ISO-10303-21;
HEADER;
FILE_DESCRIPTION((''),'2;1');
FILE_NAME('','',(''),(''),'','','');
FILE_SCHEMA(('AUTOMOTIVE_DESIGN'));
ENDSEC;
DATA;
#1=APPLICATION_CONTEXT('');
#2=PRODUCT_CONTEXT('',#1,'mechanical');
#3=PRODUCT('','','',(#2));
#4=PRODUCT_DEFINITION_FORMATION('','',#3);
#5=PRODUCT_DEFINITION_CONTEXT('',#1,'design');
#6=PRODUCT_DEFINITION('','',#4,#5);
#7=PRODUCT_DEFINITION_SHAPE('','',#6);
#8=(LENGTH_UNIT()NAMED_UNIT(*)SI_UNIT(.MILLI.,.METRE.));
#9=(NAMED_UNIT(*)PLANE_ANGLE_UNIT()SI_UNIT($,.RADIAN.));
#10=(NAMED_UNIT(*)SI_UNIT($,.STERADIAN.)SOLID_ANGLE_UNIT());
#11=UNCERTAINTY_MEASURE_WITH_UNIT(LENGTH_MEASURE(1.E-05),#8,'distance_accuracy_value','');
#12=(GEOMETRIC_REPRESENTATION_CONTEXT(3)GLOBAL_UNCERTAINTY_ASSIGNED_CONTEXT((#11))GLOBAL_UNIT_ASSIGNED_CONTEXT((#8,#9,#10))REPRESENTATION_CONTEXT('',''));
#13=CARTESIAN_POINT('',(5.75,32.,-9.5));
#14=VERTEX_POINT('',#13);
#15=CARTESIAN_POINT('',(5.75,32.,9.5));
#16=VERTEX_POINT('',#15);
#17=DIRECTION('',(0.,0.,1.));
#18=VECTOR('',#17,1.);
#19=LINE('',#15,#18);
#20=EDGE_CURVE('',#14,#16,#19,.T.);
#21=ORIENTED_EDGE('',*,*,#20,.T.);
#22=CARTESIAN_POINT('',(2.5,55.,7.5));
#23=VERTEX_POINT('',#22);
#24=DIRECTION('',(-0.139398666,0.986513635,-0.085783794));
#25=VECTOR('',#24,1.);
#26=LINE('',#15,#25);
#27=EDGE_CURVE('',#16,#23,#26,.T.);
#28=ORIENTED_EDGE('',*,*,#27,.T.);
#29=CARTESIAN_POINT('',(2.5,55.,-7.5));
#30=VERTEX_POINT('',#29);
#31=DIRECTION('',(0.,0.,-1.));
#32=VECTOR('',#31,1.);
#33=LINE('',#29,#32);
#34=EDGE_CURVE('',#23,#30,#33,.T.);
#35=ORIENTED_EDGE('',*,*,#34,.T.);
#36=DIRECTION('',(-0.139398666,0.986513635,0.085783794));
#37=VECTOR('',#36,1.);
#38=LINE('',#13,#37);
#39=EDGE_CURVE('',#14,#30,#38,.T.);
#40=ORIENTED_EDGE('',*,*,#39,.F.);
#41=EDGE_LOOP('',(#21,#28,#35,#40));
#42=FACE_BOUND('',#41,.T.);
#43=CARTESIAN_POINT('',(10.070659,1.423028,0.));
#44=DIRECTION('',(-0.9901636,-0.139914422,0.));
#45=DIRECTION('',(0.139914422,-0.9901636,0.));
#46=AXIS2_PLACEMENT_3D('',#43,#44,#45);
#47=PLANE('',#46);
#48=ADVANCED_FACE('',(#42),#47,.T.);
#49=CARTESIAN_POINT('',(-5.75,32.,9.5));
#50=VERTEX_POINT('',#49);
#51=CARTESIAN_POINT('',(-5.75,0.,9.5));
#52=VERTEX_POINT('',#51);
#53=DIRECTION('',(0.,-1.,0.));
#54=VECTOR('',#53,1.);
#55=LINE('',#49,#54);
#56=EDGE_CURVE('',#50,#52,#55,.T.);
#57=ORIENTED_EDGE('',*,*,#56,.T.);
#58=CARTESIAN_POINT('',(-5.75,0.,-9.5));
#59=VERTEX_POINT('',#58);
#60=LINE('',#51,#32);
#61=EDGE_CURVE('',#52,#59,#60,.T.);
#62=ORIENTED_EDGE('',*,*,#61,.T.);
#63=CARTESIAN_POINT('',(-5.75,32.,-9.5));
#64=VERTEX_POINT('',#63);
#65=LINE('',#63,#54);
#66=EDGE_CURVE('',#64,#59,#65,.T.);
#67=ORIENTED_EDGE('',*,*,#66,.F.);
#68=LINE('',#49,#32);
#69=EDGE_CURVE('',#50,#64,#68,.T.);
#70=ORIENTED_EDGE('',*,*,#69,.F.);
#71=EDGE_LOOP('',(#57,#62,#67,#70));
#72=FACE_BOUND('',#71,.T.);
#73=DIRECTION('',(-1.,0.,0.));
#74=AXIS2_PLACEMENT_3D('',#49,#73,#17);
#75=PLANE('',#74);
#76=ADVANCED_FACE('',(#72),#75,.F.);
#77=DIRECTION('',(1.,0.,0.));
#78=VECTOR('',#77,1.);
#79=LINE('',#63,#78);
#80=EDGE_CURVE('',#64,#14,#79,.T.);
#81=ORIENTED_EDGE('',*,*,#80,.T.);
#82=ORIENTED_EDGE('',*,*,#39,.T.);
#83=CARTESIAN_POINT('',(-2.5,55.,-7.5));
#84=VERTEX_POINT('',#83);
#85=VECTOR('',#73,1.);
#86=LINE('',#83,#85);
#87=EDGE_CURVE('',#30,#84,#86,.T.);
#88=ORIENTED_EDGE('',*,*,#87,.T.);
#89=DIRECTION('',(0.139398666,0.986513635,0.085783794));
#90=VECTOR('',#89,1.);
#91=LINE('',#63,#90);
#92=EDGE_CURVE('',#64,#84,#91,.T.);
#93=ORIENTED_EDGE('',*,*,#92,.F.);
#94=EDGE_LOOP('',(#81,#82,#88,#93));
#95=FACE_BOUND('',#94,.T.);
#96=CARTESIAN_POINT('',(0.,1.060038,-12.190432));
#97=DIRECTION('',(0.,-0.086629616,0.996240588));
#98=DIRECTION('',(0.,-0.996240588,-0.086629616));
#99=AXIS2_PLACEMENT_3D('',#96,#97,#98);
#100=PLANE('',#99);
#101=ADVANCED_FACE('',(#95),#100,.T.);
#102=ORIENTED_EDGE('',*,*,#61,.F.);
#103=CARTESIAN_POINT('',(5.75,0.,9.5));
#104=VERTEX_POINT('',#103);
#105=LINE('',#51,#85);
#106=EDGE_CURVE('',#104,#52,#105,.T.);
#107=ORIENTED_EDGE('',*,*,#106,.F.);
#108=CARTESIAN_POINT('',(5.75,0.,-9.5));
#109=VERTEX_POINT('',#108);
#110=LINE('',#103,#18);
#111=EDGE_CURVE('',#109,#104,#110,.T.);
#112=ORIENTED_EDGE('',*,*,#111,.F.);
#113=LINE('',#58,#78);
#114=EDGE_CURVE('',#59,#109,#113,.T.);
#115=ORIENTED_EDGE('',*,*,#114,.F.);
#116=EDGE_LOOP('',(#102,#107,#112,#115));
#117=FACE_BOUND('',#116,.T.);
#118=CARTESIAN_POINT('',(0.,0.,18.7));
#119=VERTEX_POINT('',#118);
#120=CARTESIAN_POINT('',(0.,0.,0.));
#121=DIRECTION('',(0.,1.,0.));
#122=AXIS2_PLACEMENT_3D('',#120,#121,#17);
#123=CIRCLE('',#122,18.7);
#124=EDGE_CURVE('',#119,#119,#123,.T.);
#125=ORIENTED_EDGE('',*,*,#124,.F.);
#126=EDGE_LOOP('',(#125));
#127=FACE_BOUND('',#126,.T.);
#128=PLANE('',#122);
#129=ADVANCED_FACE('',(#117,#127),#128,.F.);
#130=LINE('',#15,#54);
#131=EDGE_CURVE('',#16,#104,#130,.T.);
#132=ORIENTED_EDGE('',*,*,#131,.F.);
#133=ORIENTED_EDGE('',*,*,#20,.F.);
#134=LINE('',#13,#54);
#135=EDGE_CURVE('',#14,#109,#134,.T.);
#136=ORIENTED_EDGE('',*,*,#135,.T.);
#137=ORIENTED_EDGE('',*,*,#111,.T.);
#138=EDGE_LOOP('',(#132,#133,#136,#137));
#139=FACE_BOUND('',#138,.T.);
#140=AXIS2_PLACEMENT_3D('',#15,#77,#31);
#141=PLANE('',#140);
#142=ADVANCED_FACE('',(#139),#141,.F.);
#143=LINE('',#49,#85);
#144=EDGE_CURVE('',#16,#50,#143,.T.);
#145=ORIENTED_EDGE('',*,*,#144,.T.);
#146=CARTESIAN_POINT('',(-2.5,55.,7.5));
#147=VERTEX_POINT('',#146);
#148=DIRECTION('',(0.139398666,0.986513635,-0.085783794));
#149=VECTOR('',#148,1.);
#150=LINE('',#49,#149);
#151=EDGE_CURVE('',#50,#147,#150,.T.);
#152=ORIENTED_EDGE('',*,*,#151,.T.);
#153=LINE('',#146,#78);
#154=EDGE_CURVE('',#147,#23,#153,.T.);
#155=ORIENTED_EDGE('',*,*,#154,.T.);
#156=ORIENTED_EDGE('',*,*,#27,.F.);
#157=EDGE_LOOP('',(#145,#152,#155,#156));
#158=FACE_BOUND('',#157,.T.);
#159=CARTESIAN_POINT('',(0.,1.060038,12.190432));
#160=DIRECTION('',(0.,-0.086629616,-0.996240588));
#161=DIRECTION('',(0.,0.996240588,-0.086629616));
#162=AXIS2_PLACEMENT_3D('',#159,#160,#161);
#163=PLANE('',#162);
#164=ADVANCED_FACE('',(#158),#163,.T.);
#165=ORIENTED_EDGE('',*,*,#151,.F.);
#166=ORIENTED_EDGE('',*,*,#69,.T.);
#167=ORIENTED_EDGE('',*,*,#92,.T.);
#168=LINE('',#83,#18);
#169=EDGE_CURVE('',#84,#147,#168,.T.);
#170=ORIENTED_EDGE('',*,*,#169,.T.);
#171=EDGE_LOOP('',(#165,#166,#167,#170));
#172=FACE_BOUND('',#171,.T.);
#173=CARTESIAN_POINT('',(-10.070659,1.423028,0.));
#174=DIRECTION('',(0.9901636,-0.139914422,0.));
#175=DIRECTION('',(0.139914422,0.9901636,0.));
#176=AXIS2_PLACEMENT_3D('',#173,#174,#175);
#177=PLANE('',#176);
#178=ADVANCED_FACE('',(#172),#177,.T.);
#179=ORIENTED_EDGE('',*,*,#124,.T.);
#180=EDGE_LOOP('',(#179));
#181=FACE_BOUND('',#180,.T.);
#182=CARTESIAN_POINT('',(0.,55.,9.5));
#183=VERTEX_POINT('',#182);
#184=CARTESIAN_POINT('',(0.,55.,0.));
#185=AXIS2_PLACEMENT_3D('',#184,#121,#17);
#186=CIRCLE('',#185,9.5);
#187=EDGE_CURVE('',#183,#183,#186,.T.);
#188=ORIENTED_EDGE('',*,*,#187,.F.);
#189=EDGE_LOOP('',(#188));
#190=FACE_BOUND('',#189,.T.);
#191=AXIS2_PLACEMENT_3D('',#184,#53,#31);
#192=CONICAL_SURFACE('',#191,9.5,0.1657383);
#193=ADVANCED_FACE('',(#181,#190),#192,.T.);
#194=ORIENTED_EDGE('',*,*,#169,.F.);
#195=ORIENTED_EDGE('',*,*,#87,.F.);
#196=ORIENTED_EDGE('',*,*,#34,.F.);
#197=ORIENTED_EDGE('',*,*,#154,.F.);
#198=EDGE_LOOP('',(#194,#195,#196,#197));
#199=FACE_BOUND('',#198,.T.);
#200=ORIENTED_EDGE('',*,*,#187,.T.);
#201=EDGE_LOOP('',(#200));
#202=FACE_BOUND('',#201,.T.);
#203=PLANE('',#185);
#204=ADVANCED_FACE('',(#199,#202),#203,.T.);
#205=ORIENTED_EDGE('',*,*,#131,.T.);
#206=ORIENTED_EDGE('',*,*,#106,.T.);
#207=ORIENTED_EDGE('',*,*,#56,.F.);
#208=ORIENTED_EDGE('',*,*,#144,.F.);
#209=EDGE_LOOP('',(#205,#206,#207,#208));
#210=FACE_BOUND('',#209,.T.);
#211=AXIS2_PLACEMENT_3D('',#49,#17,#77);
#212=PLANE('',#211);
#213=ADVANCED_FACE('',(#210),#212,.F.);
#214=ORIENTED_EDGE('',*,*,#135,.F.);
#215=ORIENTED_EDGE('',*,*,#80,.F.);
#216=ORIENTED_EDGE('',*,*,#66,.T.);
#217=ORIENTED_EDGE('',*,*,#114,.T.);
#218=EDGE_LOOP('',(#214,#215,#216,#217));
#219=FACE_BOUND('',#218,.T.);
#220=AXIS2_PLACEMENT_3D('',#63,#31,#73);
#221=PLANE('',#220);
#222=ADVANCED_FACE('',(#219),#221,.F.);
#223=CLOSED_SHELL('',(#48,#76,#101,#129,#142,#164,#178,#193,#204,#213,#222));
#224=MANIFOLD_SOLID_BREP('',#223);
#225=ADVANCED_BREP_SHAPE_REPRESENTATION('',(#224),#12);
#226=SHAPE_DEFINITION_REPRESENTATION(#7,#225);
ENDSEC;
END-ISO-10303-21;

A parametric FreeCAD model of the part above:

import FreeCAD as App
import Part
import Sketcher
from FreeCAD import Vector

doc = App.newDocument("Part")
body = doc.addObject("PartDesign::Body", "Body")

# Sketch on XZ plane
sketch1 = doc.addObject("Sketcher::SketchObject", "Sketch")
body.addObject(sketch1)
sketch1.AttachmentSupport = (doc.XZ_Plane, [""])
sketch1.MapMode = "FlatFace"
sketch1.AttachmentOffset = App.Placement(Vector(0, 0, -55), App.Rotation())
sketch1.addGeometry(Part.Circle(Vector(0, 0, 0), Vector(0, 0, 1), 10), False)
sketch1.addConstraint(Sketcher.Constraint("Coincident", 0, 3, -1, 1))
sketch1.addConstraint(Sketcher.Constraint("Diameter", 0, 19.0))

# Sketch on XZ plane
sketch2 = doc.addObject("Sketcher::SketchObject", "Sketch001")
body.addObject(sketch2)
sketch2.AttachmentSupport = (doc.XZ_Plane, [""])
sketch2.MapMode = "FlatFace"
sketch2.addGeometry(Part.Circle(Vector(0, 0, 0), Vector(0, 0, 1), 19), False)
sketch2.addConstraint(Sketcher.Constraint("Coincident", 0, 3, -1, 1))
sketch2.addConstraint(Sketcher.Constraint("Diameter", 0, 37.4))

additiveloft = doc.addObject("PartDesign::AdditiveLoft", "AdditiveLoft")
body.addObject(additiveloft)
additiveloft.Profile = sketch1
additiveloft.Sections = [sketch2]

# Sketch on XZ plane
sketch3 = doc.addObject("Sketcher::SketchObject", "Sketch002")
body.addObject(sketch3)
sketch3.AttachmentSupport = (doc.XZ_Plane, [""])
sketch3.MapMode = "FlatFace"
sketch3.addGeometry(Part.LineSegment(Vector(-6, 10, 0), Vector(-6, -10, 0)), False)
sketch3.addGeometry(Part.LineSegment(Vector(-6, -10, 0), Vector(6, -10, 0)), False)
sketch3.addGeometry(Part.LineSegment(Vector(6, -10, 0), Vector(6, 10, 0)), False)
sketch3.addGeometry(Part.LineSegment(Vector(6, 10, 0), Vector(-6, 10, 0)), False)
sketch3.addConstraint(Sketcher.Constraint("Coincident", 0, 2, 1, 1))
sketch3.addConstraint(Sketcher.Constraint("Coincident", 1, 2, 2, 1))
sketch3.addConstraint(Sketcher.Constraint("Coincident", 2, 2, 3, 1))
sketch3.addConstraint(Sketcher.Constraint("Coincident", 3, 2, 0, 1))
sketch3.addConstraint(Sketcher.Constraint("Vertical", 0))
sketch3.addConstraint(Sketcher.Constraint("Horizontal", 1))
sketch3.addConstraint(Sketcher.Constraint("Vertical", 2))
sketch3.addConstraint(Sketcher.Constraint("Horizontal", 3))
sketch3.addConstraint(Sketcher.Constraint("Symmetric", 0, 2, 2, 2, -1, 1))
sketch3.addConstraint(Sketcher.Constraint("DistanceY", 0, 2, 0, 1, 19.0))
sketch3.addConstraint(Sketcher.Constraint("DistanceX", 1, 1, 1, 2, 11.5))
pocket1 = doc.addObject("PartDesign::Pocket", "Pocket")
body.addObject(pocket1)
pocket1.Profile = sketch3
pocket1.Length = 32

# Sketch on XZ plane
sketch4 = doc.addObject("Sketcher::SketchObject", "Sketch003")
body.addObject(sketch4)
sketch4.AttachmentSupport = (doc.XZ_Plane, [""])
sketch4.MapMode = "FlatFace"
sketch4.AttachmentOffset = App.Placement(Vector(0, 0, -32), App.Rotation())
sketch4.addGeometry(Part.LineSegment(Vector(-6, 10, 0), Vector(-6, -10, 0)), False)
sketch4.addGeometry(Part.LineSegment(Vector(-6, -10, 0), Vector(6, -10, 0)), False)
sketch4.addGeometry(Part.LineSegment(Vector(6, -10, 0), Vector(6, 10, 0)), False)
sketch4.addGeometry(Part.LineSegment(Vector(6, 10, 0), Vector(-6, 10, 0)), False)
sketch4.addConstraint(Sketcher.Constraint("Coincident", 0, 2, 1, 1))
sketch4.addConstraint(Sketcher.Constraint("Coincident", 1, 2, 2, 1))
sketch4.addConstraint(Sketcher.Constraint("Coincident", 2, 2, 3, 1))
sketch4.addConstraint(Sketcher.Constraint("Coincident", 3, 2, 0, 1))
sketch4.addConstraint(Sketcher.Constraint("Vertical", 0))
sketch4.addConstraint(Sketcher.Constraint("Horizontal", 1))
sketch4.addConstraint(Sketcher.Constraint("Vertical", 2))
sketch4.addConstraint(Sketcher.Constraint("Horizontal", 3))
sketch4.addConstraint(Sketcher.Constraint("Symmetric", 0, 2, 2, 2, -1, 1))
sketch4.addConstraint(Sketcher.Constraint("DistanceY", 0, 2, 0, 1, 19.0))
sketch4.addConstraint(Sketcher.Constraint("DistanceX", 1, 1, 1, 2, 11.5))

# Sketch on XZ plane
sketch5 = doc.addObject("Sketcher::SketchObject", "Sketch004")
body.addObject(sketch5)
sketch5.AttachmentSupport = (doc.XZ_Plane, [""])
sketch5.MapMode = "FlatFace"
sketch5.AttachmentOffset = App.Placement(Vector(0, 0, -55), App.Rotation())
sketch5.addGeometry(Part.LineSegment(Vector(-2, -8, 0), Vector(-2, 8, 0)), False)
sketch5.addGeometry(Part.LineSegment(Vector(-2, 8, 0), Vector(2, 8, 0)), False)
sketch5.addGeometry(Part.LineSegment(Vector(2, 8, 0), Vector(2, -8, 0)), False)
sketch5.addGeometry(Part.LineSegment(Vector(2, -8, 0), Vector(-2, -8, 0)), False)
sketch5.addConstraint(Sketcher.Constraint("Coincident", 0, 2, 1, 1))
sketch5.addConstraint(Sketcher.Constraint("Coincident", 1, 2, 2, 1))
sketch5.addConstraint(Sketcher.Constraint("Coincident", 2, 2, 3, 1))
sketch5.addConstraint(Sketcher.Constraint("Coincident", 3, 2, 0, 1))
sketch5.addConstraint(Sketcher.Constraint("Vertical", 0))
sketch5.addConstraint(Sketcher.Constraint("Horizontal", 1))
sketch5.addConstraint(Sketcher.Constraint("Vertical", 2))
sketch5.addConstraint(Sketcher.Constraint("Horizontal", 3))
sketch5.addConstraint(Sketcher.Constraint("Symmetric", 0, 2, 2, 2, -1, 1))
sketch5.addConstraint(Sketcher.Constraint("DistanceX", 1, 1, 1, 2, 5.0))
sketch5.addConstraint(Sketcher.Constraint("DistanceY", 0, 1, 0, 2, 15.0))

subtractiveloft = doc.addObject("PartDesign::SubtractiveLoft", "SubtractiveLoft")
body.addObject(subtractiveloft)
subtractiveloft.Profile = sketch4
subtractiveloft.Sections = [sketch5]

doc.recompute()
